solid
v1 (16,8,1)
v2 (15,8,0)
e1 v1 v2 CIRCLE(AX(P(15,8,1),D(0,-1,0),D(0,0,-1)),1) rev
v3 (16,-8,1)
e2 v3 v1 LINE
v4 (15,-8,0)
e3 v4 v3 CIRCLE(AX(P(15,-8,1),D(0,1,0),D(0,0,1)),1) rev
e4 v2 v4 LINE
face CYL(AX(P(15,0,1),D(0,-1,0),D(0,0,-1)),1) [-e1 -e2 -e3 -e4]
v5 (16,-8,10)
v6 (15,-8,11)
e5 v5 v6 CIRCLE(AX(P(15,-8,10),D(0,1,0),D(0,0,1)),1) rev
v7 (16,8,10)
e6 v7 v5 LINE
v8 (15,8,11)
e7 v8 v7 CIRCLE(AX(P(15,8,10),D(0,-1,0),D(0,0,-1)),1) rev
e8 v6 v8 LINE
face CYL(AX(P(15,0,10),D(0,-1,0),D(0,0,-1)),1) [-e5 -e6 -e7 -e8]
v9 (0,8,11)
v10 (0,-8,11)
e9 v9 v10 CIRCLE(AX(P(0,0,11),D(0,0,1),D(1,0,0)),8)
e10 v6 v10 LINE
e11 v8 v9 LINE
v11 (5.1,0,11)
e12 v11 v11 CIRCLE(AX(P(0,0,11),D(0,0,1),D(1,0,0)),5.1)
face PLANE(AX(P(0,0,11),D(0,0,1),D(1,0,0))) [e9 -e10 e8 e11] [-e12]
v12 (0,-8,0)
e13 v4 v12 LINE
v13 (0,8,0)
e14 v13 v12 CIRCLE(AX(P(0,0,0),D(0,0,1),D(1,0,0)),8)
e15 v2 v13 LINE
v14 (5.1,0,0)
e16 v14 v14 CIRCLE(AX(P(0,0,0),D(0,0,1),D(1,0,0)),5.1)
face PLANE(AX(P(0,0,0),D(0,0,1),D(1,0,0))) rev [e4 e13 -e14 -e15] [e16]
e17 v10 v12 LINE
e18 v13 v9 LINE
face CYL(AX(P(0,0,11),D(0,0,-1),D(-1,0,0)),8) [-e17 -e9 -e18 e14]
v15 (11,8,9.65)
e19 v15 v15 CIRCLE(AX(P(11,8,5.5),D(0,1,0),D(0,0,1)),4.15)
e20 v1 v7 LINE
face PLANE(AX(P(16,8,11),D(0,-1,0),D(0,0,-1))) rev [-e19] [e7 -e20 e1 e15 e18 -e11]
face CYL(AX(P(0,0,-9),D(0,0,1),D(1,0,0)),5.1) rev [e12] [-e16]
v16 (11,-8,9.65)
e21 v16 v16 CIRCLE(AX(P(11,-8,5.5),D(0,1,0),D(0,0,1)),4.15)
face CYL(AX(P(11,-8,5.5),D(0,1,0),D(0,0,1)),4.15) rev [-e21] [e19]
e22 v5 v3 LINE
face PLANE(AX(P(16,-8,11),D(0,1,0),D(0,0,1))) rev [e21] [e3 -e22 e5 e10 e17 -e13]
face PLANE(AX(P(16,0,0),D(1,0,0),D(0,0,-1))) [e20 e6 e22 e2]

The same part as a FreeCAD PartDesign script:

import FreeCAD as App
import Part
import Sketcher


def edges_at(feature, points):
    """Names of the edges that pass closest to the given points."""
    edges = feature.Shape.Edges
    near = lambda p: min(range(len(edges)), key=lambda i: edges[i].distToShape(Part.Vertex(*p))[0])
    return sorted({f"Edge{near(p) + 1}" for p in points})


def add_polygon(sketch, points):
    """Adds a closed chain of lines whose ends are joined by coincident constraints."""
    first, n = sketch.GeometryCount, len(points)
    for a, b in zip(points, points[1:] + points[:1]):
        sketch.addGeometry(Part.LineSegment(App.Vector(*a, 0), App.Vector(*b, 0)), False)
    for i in range(n):
        sketch.addConstraint(Sketcher.Constraint("Coincident", first + i, 2, first + (i + 1) % n, 1))

doc = App.newDocument("Part")
body = doc.addObject("PartDesign::Body", "Body")

# Sketch on XY plane
sketch1 = body.newObject("Sketcher::SketchObject", "Sketch")
sketch1.AttachmentSupport = (doc.getObject("XY_Plane"), [""])
sketch1.MapMode = "FlatFace"
sketch1.addGeometry(Part.Circle(App.Vector(0, 0, 0), App.Vector(0, 0, 1), 8), False)
sketch1.addConstraint([
    Sketcher.Constraint("Coincident", 0, 3, -1, 1),
    Sketcher.Constraint("Diameter", 0, 16.0),
])
pad1 = body.newObject("PartDesign::Pad", "Pad")
pad1.Profile = sketch1
pad1.Length = 11

# Sketch on YZ plane
sketch2 = body.newObject("Sketcher::SketchObject", "Sketch001")
sketch2.AttachmentSupport = (doc.getObject("YZ_Plane"), [""])
sketch2.MapMode = "FlatFace"
add_polygon(sketch2, [(8, 11), (-8, 11), (-8, 0), (8, 0)])  # lines 0-3
sketch2.addConstraint([
    Sketcher.Constraint("Horizontal", 0),
    Sketcher.Constraint("Vertical", 1),
    Sketcher.Constraint("Horizontal", 2),
    Sketcher.Constraint("Vertical", 3),
    Sketcher.Constraint("Symmetric", 1, 2, 2, 2, -1, 1),
    Sketcher.Constraint("DistanceX", 0, 2, 0, 1, 16.0),
    Sketcher.Constraint("DistanceY", 1, 2, 1, 1, 11.0),
])
pad2 = body.newObject("PartDesign::Pad", "Pad001")
pad2.Profile = sketch2
pad2.Length = 16

# Sketch on XY plane
sketch3 = body.newObject("Sketcher::SketchObject", "Sketch002")
sketch3.AttachmentSupport = (doc.getObject("XY_Plane"), [""])
sketch3.MapMode = "FlatFace"
sketch3.AttachmentOffset = App.Placement(App.Vector(0, 0, 11), App.Rotation())
sketch3.addGeometry(Part.Circle(App.Vector(0, 0, 0), App.Vector(0, 0, 1), 5), False)
sketch3.addConstraint([
    Sketcher.Constraint("Coincident", 0, 3, -1, 1),
    Sketcher.Constraint("Diameter", 0, 10.2),
])
pocket1 = body.newObject("PartDesign::Pocket", "Pocket")
pocket1.Profile = sketch3
pocket1.Length = 20

# Sketch on XZ plane
sketch4 = body.newObject("Sketcher::SketchObject", "Sketch003")
sketch4.AttachmentSupport = (doc.getObject("XZ_Plane"), [""])
sketch4.MapMode = "FlatFace"
sketch4.addGeometry(Part.Circle(App.Vector(11, 5.5, 0), App.Vector(0, 0, 1), 4.2), False)
sketch4.addConstraint([
    Sketcher.Constraint("Diameter", 0, 8.3),
    Sketcher.Constraint("DistanceX", -1, 1, 0, 3, 11.0),
    Sketcher.Constraint("DistanceY", -1, 1, 0, 3, 5.5),
])
pocket2 = body.newObject("PartDesign::Pocket", "Pocket001")
pocket2.Profile = sketch4
pocket2.Type = "ThroughAll"
pocket2.Midplane = True
doc.recompute()

fillet = body.newObject("PartDesign::Fillet", "Fillet")
fillet.Base = (pocket2, edges_at(pocket2, [(16, 0, 0)]))
fillet.Radius = 1
doc.recompute()

fillet2 = body.newObject("PartDesign::Fillet", "Fillet001")
fillet2.Base = (fillet, edges_at(fillet, [(16, 0, 11)]))
fillet2.Radius = 1

doc.recompute()
